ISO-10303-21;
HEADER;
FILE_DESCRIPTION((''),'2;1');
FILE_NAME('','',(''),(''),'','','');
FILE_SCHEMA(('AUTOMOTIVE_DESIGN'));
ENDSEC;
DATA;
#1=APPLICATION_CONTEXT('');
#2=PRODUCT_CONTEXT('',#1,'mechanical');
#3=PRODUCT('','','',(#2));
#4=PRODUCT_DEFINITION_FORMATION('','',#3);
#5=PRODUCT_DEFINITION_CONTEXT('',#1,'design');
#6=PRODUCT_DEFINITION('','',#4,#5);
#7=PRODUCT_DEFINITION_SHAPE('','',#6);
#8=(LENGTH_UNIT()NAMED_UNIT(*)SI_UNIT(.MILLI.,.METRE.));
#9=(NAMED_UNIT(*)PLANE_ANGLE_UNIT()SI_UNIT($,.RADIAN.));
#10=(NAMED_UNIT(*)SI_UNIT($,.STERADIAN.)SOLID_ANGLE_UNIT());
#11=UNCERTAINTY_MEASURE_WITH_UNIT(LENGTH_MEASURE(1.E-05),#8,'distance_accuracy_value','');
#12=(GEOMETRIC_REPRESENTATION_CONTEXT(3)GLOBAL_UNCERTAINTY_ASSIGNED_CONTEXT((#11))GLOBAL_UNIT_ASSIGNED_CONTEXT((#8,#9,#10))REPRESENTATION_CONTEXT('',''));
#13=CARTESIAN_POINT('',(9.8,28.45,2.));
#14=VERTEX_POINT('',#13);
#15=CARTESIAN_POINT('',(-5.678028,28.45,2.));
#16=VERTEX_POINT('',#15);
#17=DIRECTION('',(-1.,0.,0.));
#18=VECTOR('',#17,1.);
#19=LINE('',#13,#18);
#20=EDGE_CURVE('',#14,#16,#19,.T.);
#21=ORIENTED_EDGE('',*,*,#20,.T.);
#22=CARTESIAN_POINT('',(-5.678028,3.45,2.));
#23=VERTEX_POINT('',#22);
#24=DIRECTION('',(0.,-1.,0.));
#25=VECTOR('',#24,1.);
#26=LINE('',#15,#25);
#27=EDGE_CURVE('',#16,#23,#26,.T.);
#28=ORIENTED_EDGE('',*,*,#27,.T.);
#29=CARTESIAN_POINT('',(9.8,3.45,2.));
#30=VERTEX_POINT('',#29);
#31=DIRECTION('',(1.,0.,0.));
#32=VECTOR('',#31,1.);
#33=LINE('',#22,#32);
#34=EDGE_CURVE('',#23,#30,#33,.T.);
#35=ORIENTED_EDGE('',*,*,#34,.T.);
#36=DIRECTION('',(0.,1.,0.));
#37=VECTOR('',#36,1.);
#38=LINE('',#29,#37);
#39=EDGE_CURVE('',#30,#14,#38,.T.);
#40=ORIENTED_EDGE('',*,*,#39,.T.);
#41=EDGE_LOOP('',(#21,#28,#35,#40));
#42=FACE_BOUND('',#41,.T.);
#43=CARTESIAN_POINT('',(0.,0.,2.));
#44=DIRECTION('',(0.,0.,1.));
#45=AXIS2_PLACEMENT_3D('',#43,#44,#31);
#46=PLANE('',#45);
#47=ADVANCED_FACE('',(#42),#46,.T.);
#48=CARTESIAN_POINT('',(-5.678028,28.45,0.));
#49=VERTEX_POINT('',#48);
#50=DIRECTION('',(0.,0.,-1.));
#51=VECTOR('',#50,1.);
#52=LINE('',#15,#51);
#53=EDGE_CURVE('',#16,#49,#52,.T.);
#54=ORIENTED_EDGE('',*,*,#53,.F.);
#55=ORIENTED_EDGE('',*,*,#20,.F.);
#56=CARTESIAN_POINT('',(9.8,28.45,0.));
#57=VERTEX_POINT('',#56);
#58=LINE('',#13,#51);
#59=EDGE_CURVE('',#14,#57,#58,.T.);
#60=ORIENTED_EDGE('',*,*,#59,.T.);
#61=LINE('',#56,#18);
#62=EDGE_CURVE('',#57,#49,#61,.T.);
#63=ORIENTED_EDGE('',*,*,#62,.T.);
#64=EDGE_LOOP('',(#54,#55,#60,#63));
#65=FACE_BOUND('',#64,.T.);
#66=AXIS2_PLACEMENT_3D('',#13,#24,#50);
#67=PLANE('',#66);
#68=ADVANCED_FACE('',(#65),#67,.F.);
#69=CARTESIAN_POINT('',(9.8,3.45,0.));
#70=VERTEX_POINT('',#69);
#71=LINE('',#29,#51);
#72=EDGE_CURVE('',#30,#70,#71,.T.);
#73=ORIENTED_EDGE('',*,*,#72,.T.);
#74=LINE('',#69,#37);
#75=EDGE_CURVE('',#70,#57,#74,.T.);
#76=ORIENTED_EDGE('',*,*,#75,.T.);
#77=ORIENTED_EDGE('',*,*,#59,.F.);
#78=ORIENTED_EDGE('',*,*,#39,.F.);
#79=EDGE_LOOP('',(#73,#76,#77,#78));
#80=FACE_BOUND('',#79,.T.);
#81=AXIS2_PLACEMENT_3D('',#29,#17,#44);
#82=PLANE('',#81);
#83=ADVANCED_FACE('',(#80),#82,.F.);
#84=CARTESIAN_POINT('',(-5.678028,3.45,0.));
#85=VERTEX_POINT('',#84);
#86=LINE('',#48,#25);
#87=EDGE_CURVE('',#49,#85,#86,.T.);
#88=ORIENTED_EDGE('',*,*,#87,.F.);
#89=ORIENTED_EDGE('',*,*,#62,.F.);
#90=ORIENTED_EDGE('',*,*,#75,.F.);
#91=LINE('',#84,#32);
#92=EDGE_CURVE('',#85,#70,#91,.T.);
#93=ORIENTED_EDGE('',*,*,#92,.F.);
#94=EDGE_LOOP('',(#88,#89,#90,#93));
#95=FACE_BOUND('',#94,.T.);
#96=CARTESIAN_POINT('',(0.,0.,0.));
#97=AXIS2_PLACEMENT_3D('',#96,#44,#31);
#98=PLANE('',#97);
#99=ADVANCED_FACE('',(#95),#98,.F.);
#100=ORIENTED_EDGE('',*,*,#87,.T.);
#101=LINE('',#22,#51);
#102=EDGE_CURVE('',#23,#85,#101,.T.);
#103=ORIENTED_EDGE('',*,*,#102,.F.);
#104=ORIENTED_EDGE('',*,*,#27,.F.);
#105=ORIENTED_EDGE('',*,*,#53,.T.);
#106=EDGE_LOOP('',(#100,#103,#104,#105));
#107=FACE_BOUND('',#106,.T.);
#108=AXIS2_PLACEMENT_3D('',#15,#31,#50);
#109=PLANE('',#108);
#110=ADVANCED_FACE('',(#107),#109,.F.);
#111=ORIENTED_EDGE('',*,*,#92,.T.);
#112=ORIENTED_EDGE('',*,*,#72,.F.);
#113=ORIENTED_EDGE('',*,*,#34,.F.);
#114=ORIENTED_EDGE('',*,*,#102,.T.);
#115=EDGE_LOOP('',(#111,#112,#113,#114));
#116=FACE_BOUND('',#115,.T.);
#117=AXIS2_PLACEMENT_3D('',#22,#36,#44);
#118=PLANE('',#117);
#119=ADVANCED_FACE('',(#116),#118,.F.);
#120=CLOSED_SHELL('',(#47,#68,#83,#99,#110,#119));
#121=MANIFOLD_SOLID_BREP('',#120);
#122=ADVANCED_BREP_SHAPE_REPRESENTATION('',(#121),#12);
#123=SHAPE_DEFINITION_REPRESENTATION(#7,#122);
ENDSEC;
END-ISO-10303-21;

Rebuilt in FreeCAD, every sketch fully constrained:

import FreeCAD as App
import Part
import Sketcher

V = App.Vector
Q = App.Units.Quantity


def add_polygon(sketch, points):
    """Adds a closed chain of lines whose ends are joined by coincident constraints."""
    first, n = sketch.GeometryCount, len(points)
    for a, b in zip(points, points[1:] + points[:1]):
        sketch.addGeometry(Part.LineSegment(App.Vector(*a, 0), App.Vector(*b, 0)), False)
    for i in range(n):
        sketch.addConstraint(Sketcher.Constraint("Coincident", first + i, 2, first + (i + 1) % n, 1))

doc = App.newDocument("Part")
body = doc.addObject("PartDesign::Body", "Body")

sketch1 = doc.addObject("Sketcher::SketchObject", "Sketch")
body.addObject(sketch1)
sketch1.AttachmentSupport = (doc.XY_Plane, [""])
sketch1.MapMode = "FlatFace"
add_polygon(sketch1, [(-6, 28), (-6, 3), (10, 3), (10, 28)])
sketch1.addConstraint([
    Sketcher.Constraint("Vertical", 0),
    Sketcher.Constraint("Horizontal", 1),
    Sketcher.Constraint("Vertical", 2),
    Sketcher.Constraint("Horizontal", 3),
    Sketcher.Constraint("DistanceY", 0, 2, 0, 1, Q("25 mm")),
    Sketcher.Constraint("DistanceX", -1, 1, 1, 2, Q("9.8 mm")),
    Sketcher.Constraint("DistanceY", -1, 1, 0, 2, Q("3.45 mm")),
    Sketcher.Constraint("DistanceX", 1, 1, 1, 2, Q("15.478028 mm")),
])
pad1 = doc.addObject("PartDesign::Pad", "Pad")
body.addObject(pad1)
pad1.Profile = sketch1
pad1.Length = 2

doc.recompute()
